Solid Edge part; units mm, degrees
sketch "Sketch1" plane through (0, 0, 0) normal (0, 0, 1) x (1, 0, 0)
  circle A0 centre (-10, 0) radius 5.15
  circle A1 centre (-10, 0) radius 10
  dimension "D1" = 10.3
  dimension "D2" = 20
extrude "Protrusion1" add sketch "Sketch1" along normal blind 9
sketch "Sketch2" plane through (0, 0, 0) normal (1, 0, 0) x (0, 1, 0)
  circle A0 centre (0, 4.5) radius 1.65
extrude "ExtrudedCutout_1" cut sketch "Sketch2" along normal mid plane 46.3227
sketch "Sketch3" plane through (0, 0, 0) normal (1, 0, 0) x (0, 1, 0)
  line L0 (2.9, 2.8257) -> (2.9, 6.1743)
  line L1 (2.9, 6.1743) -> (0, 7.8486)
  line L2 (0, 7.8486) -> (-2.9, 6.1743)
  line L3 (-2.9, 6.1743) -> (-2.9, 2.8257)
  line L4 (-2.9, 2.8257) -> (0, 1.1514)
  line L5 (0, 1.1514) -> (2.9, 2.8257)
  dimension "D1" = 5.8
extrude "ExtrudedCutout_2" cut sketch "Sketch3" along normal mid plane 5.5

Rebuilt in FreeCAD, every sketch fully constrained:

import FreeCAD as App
import Part
import Sketcher
from FreeCAD import Vector
Q = App.Units.Quantity

doc = App.newDocument("Part")
params = doc.addObject("Spreadsheet::Sheet", "Params")
for row, (alias, value) in enumerate([
    ("sketch1_diameter", "20 mm"),
    ("sketch1_diameter2", "10.3 mm"),
    ("pad1_length", "9 mm"),
    ("sketch2_diameter", "3.3 mm"),
    ("pocket1_length", "46.3227 mm"),
    ("pocket2_length", "5.5 mm"),
], start=1):
    params.set(f"A{row}", alias)
    params.set(f"B{row}", "=" + value)
    params.setAlias(f"B{row}", alias)

body = doc.addObject("PartDesign::Body", "Body")

# Sketch on XY plane
sketch1 = doc.addObject("Sketcher::SketchObject", "Sketch")
body.addObject(sketch1)
sketch1.AttachmentSupport = (doc.XY_Plane, [""])
sketch1.MapMode = "FlatFace"
sketch1.addGeometry([
    Part.Circle(Vector(-10, 0, 0), Vector(0, 0, 1), 10),
    Part.Circle(Vector(-10, 0, 0), Vector(0, 0, 1), 5),
], False)
sketch1.addConstraint([
    Sketcher.Constraint("Coincident", 1, 3, 0, 3),
    Sketcher.Constraint("PointOnObject", 0, 3, -1),
    Sketcher.Constraint("Diameter", 0, Q("20 mm")),
    Sketcher.Constraint("Diameter", 1, Q("10.3 mm")),
    Sketcher.Constraint("DistanceX", 0, 3, -1, 1, Q("10 mm")),
])
sketch1.setExpression("Constraints[2]", "Params.sketch1_diameter")
sketch1.setExpression("Constraints[3]", "Params.sketch1_diameter2")
pad1 = doc.addObject("PartDesign::Pad", "Pad")
body.addObject(pad1)
pad1.Profile = sketch1
pad1.setExpression("Length", "Params.pad1_length")

# Sketch on YZ plane
sketch2 = doc.addObject("Sketcher::SketchObject", "Sketch001")
body.addObject(sketch2)
sketch2.AttachmentSupport = (doc.YZ_Plane, [""])
sketch2.MapMode = "FlatFace"
sketch2.addGeometry(Part.Circle(Vector(0, 4.5, 0), Vector(0, 0, 1), 1.6), False)
sketch2.addConstraint([
    Sketcher.Constraint("PointOnObject", 0, 3, -2),
    Sketcher.Constraint("Diameter", 0, Q("3.3 mm")),
    Sketcher.Constraint("DistanceY", -1, 1, 0, 3, Q("4.5 mm")),
])
sketch2.setExpression("Constraints[1]", "Params.sketch2_diameter")
pocket1 = doc.addObject("PartDesign::Pocket", "Pocket")
body.addObject(pocket1)
pocket1.Profile = sketch2
pocket1.setExpression("Length", "Params.pocket1_length")
pocket1.Midplane = True

# Sketch on YZ plane
sketch3 = doc.addObject("Sketcher::SketchObject", "Sketch002")
body.addObject(sketch3)
sketch3.AttachmentSupport = (doc.YZ_Plane, [""])
sketch3.MapMode = "FlatFace"
sketch3.addGeometry([
    Part.LineSegment(Vector(0, 1.2, 0), Vector(2.9, 2.8, 0)),  # 0
    Part.LineSegment(Vector(2.9, 2.8, 0), Vector(2.9, 6.2, 0)),  # 1
    Part.LineSegment(Vector(2.9, 6.2, 0), Vector(0, 7.8, 0)),  # 2
    Part.LineSegment(Vector(0, 7.8, 0), Vector(-2.9, 6.2, 0)),  # 3
    Part.LineSegment(Vector(-2.9, 6.2, 0), Vector(-2.9, 2.8, 0)),  # 4
    Part.LineSegment(Vector(-2.9, 2.8, 0), Vector(0, 1.2, 0)),  # 5
], False)
sketch3.addConstraint([
    Sketcher.Constraint("Coincident", 0, 2, 1, 1),
    Sketcher.Constraint("Coincident", 1, 2, 2, 1),
    Sketcher.Constraint("Coincident", 2, 2, 3, 1),
    Sketcher.Constraint("Coincident", 3, 2, 4, 1),
    Sketcher.Constraint("Coincident", 4, 2, 5, 1),
    Sketcher.Constraint("Coincident", 5, 2, 0, 1),
    Sketcher.Constraint("Vertical", 1),
    Sketcher.Constraint("Vertical", 4),
    Sketcher.Constraint("Symmetric", 1, 2, 3, 2, -2),
    Sketcher.Constraint("PointOnObject", 2, 2, -2),
    Sketcher.Constraint("PointOnObject", 5, 2, -2),
    Sketcher.Constraint("Parallel", 0, 3),
    Sketcher.Constraint("Parallel", 2, 5),
    Sketcher.Constraint("Angle", 0, Q("29.9998 deg")),
    Sketcher.Constraint("DistanceX", -1, 1, 0, 2, Q("2.9 mm")),
    Sketcher.Constraint("DistanceY", 1, 1, 1, 2, Q("3.3486 mm")),
    Sketcher.Constraint("DistanceY", -1, 1, 0, 2, Q("2.8257 mm")),
])
pocket2 = doc.addObject("PartDesign::Pocket", "Pocket001")
body.addObject(pocket2)
pocket2.Profile = sketch3
pocket2.setExpression("Length", "Params.pocket2_length")
pocket2.Midplane = True

doc.recompute()
